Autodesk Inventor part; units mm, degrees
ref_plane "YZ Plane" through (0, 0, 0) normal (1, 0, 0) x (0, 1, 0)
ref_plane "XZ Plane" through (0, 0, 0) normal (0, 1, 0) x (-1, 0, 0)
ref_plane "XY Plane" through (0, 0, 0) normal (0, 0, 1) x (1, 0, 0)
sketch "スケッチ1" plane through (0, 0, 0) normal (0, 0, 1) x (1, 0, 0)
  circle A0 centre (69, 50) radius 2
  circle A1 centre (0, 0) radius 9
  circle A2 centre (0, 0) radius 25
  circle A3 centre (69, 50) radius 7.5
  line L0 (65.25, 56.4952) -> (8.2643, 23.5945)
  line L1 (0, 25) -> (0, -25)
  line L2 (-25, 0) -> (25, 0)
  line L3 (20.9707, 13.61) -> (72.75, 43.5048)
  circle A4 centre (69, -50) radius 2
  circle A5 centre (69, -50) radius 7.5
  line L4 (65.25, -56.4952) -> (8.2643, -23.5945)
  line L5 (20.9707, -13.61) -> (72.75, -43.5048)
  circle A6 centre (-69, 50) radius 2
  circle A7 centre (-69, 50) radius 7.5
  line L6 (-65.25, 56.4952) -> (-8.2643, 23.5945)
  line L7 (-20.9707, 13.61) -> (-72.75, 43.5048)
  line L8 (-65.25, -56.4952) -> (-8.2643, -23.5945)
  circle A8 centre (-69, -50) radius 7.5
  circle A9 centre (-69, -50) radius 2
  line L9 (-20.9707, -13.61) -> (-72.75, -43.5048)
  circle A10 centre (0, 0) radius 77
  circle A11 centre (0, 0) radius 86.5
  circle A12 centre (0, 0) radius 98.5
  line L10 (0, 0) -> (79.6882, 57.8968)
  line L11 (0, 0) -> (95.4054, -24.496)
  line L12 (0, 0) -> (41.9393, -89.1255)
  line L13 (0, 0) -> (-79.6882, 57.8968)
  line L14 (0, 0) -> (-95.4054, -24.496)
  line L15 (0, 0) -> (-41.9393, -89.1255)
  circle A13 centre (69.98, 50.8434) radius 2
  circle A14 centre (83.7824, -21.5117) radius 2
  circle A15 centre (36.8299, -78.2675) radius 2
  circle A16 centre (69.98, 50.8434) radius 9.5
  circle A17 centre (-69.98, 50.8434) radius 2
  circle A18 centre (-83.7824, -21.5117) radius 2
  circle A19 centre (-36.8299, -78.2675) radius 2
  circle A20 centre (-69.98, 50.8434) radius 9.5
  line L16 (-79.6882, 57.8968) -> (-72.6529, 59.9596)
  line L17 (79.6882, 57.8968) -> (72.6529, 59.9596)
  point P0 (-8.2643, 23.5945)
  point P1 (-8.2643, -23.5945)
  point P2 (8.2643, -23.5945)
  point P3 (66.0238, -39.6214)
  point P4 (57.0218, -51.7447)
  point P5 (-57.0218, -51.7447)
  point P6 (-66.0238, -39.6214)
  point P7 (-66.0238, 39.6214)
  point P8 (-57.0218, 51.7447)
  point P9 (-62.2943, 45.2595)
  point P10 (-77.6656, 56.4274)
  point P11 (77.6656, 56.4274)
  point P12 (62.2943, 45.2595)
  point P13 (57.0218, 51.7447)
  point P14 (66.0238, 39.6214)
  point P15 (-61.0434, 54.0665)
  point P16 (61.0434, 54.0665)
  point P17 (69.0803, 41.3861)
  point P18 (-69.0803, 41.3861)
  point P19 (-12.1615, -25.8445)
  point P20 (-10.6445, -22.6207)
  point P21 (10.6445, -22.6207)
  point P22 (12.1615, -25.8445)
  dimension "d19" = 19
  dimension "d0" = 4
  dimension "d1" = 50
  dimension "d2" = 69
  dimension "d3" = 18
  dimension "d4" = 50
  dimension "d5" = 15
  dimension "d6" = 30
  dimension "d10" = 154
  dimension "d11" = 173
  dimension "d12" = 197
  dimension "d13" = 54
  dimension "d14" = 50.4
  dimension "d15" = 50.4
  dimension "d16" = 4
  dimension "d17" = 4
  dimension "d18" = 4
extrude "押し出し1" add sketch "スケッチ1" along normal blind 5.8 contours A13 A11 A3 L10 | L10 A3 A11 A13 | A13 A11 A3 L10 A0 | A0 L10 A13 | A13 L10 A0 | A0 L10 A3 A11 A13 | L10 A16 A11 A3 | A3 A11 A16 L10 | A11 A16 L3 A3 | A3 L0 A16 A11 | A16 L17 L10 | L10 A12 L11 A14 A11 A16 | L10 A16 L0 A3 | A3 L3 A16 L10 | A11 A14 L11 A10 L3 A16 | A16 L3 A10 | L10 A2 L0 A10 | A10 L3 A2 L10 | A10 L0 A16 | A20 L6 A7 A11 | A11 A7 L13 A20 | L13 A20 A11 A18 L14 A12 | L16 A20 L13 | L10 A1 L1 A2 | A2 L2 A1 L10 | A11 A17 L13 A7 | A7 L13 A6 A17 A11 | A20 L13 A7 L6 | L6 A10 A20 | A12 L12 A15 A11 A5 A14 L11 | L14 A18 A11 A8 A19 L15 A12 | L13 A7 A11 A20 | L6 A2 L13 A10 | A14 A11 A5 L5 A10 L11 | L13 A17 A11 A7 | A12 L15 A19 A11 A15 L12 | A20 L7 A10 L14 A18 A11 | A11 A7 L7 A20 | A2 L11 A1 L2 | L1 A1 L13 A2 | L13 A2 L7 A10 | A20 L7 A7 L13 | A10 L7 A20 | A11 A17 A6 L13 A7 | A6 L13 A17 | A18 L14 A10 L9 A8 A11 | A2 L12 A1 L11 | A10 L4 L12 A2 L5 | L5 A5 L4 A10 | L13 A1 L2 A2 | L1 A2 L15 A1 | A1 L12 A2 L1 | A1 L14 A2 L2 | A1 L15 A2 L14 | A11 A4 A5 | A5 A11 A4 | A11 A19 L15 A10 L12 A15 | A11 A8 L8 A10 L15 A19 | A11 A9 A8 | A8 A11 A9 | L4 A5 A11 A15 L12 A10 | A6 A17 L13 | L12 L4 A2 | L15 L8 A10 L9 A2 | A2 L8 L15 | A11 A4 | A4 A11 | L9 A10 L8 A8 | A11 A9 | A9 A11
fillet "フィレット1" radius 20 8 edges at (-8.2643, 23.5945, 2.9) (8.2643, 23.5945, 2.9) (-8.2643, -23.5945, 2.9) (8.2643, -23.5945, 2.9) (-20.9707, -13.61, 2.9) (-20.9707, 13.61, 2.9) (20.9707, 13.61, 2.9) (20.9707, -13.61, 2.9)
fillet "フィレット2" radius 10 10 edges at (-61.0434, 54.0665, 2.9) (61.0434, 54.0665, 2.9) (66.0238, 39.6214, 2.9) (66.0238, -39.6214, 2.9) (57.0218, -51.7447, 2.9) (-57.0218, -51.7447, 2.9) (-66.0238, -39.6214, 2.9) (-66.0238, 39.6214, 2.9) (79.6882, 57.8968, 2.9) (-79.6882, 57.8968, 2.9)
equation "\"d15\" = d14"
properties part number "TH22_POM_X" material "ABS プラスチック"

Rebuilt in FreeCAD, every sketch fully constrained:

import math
import FreeCAD as App
import Part
import Sketcher
from FreeCAD import Vector
Q = App.Units.Quantity


def edges_at(feature, points):
    """Names of the edges that pass closest to the given points."""
    edges = feature.Shape.Edges
    near = lambda p: min(range(len(edges)), key=lambda i: edges[i].distToShape(Part.Vertex(*p))[0])
    return sorted({f"Edge{near(p) + 1}" for p in points})

doc = App.newDocument("Part")
body = doc.addObject("PartDesign::Body", "Body")

sketch1 = doc.addObject("Sketcher::SketchObject", "Sketch")
body.addObject(sketch1)
sketch1.AttachmentSupport = (doc.XY_Plane, [""])
sketch1.MapMode = "FlatFace"
sketch1.addGeometry([
    Part.ArcOfCircle(Part.Circle(Vector(69.98, 50.8434, 0), Vector(0, 0, 1), 9.5), math.radians(73.658688), math.radians(160.166905)),
    Part.LineSegment(Vector(61.043493, 54.066573, 0), Vector(8.2643, 23.5945, 0)),
    Part.ArcOfCircle(Part.Circle(Vector(0, 0, 0), Vector(0, 0, 1), 25), math.radians(70.696488), math.radians(109.303512)),
    Part.LineSegment(Vector(-8.2643, 23.5945, 0), Vector(-61.043493, 54.066573, 0)),
    Part.ArcOfCircle(Part.Circle(Vector(-69.98, 50.8434, 0), Vector(0, 0, 1), 9.5), math.radians(19.833095), math.radians(106.341312)),
    Part.LineSegment(Vector(-72.6529, 59.9596, 0), Vector(-79.6882, 57.8968, 0)),
    Part.ArcOfCircle(Part.Circle(Vector(0, 0, 0), Vector(0, 0, 1), 98.5), math.radians(144.000031), math.radians(395.999969)),
    Part.LineSegment(Vector(79.6882, 57.8968, 0), Vector(72.6529, 59.9596, 0)),
    Part.Circle(Vector(69.98, 50.8434, 0), Vector(0, 0, 1), 2),
    Part.Circle(Vector(83.7824, -21.5117, 0), Vector(0, 0, 1), 2),
    Part.ArcOfCircle(Part.Circle(Vector(0, 0, 0), Vector(0, 0, 1), 77), math.radians(-30.968316), math.radians(30.968316)),
    Part.LineSegment(Vector(66.023803, -39.621427, 0), Vector(20.9707, -13.61, 0)),
    Part.ArcOfCircle(Part.Circle(Vector(0, 0, 0), Vector(0, 0, 1), 25), math.radians(-32.983601), math.radians(32.983601)),
    Part.LineSegment(Vector(20.9707, 13.61, 0), Vector(66.023803, 39.621427, 0)),
    Part.Circle(Vector(36.8299, -78.2675, 0), Vector(0, 0, 1), 2),
    Part.Circle(Vector(0, 0, 0), Vector(0, 0, 1), 9),
    Part.Circle(Vector(-36.8299, -78.2675, 0), Vector(0, 0, 1), 2),
    Part.ArcOfCircle(Part.Circle(Vector(0, 0, 0), Vector(0, 0, 1), 77), math.radians(-137.777716), math.radians(-42.222284)),
    Part.LineSegment(Vector(-57.021833, -51.744667, 0), Vector(-8.2643, -23.5945, 0)),
    Part.ArcOfCircle(Part.Circle(Vector(0, 0, 0), Vector(0, 0, 1), 25), math.radians(-109.303512), math.radians(-70.696488)),
    Part.LineSegment(Vector(8.2643, -23.5945, 0), Vector(57.021833, -51.744667, 0)),
    Part.Circle(Vector(-83.7824, -21.5117, 0), Vector(0, 0, 1), 2),
    Part.ArcOfCircle(Part.Circle(Vector(0, 0, 0), Vector(0, 0, 1), 25), math.radians(147.016399), math.radians(212.983601)),
    Part.LineSegment(Vector(-20.9707, -13.61, 0), Vector(-66.023803, -39.621427, 0)),
    Part.ArcOfCircle(Part.Circle(Vector(0, 0, 0), Vector(0, 0, 1), 77), math.radians(149.031684), math.radians(210.968316)),
    Part.LineSegment(Vector(-66.023803, 39.621427, 0), Vector(-20.9707, 13.61, 0)),
    Part.Circle(Vector(-69.98, 50.8434, 0), Vector(0, 0, 1), 2),
], False)
sketch1.addConstraint([
    Sketcher.Constraint("Coincident", 0, 2, 1, 1),
    Sketcher.Constraint("Coincident", 1, 2, 2, 1),
    Sketcher.Constraint("Coincident", 2, 2, 3, 1),
    Sketcher.Constraint("Coincident", 3, 2, 4, 1),
    Sketcher.Constraint("Tangent", 4, 2, 5, 1),
    Sketcher.Constraint("Coincident", 5, 2, 6, 1),
    Sketcher.Constraint("Coincident", 6, 2, 7, 1),
    Sketcher.Constraint("Tangent", 7, 2, 0, 1),
    Sketcher.Constraint("Coincident", 10, 1, 11, 1),
    Sketcher.Constraint("Coincident", 11, 2, 12, 1),
    Sketcher.Constraint("Coincident", 12, 2, 13, 1),
    Sketcher.Constraint("Coincident", 13, 2, 10, 2),
    Sketcher.Constraint("Coincident", 17, 1, 18, 1),
    Sketcher.Constraint("Coincident", 18, 2, 19, 1),
    Sketcher.Constraint("Coincident", 19, 2, 20, 1),
    Sketcher.Constraint("Coincident", 20, 2, 17, 2),
    Sketcher.Constraint("Coincident", 22, 2, 23, 1),
    Sketcher.Constraint("Coincident", 23, 2, 24, 2),
    Sketcher.Constraint("Coincident", 24, 1, 25, 1),
    Sketcher.Constraint("Coincident", 25, 2, 22, 1),
    Sketcher.Constraint("Coincident", 2, 3, -1, 1),
    Sketcher.Constraint("Coincident", 6, 3, -1, 1),
    Sketcher.Constraint("Coincident", 10, 3, -1, 1),
    Sketcher.Constraint("Coincident", 12, 3, -1, 1),
    Sketcher.Constraint("Coincident", 15, 3, -1, 1),
    Sketcher.Constraint("Coincident", 17, 3, -1, 1),
    Sketcher.Constraint("Coincident", 19, 3, -1, 1),
    Sketcher.Constraint("Coincident", 22, 3, -1, 1),
    Sketcher.Constraint("Coincident", 24, 3, -1, 1),
    Sketcher.Constraint("Coincident", 8, 3, 0, 3),
    Sketcher.Constraint("Coincident", 26, 3, 4, 3),
    Sketcher.Constraint("Equal", 0, 4),
    Sketcher.Constraint("Equal", 8, 9),
    Sketcher.Constraint("Equal", 2, 12),
    Sketcher.Constraint("Equal", 9, 14),
    Sketcher.Constraint("Equal", 14, 16),
    Sketcher.Constraint("Equal", 10, 17),
    Sketcher.Constraint("Equal", 12, 19),
    Sketcher.Constraint("Equal", 16, 21),
    Sketcher.Constraint("Equal", 19, 22),
    Sketcher.Constraint("Equal", 17, 24),
    Sketcher.Constraint("Equal", 21, 26),
    Sketcher.Constraint("Symmetric", 0, 3, 4, 3, -2),
    Sketcher.Constraint("Symmetric", 14, 3, 16, 3, -2),
    Sketcher.Constraint("Symmetric", 9, 3, 21, 3, -2),
    Sketcher.Constraint("Parallel", 3, 11),
    Sketcher.Constraint("Parallel", 1, 13),
    Sketcher.Constraint("Parallel", 13, 18),
    Sketcher.Constraint("Parallel", 11, 20),
    Sketcher.Constraint("Parallel", 18, 23),
    Sketcher.Constraint("Parallel", 20, 25),
    Sketcher.Constraint("Horizontal", 1, 2, 2, 2),
    Sketcher.Constraint("Horizontal", 0, 2, 3, 2),
    Sketcher.Constraint("Horizontal", 5, 2, 6, 2),
    Sketcher.Constraint("Horizontal", 18, 2, 19, 2),
    Sketcher.Constraint("Horizontal", 11, 2, 22, 2),
    Sketcher.Constraint("Horizontal", 13, 2, 24, 1),
    Sketcher.Constraint("Vertical", 11, 2, 12, 2),
    Sketcher.Constraint("Vertical", 2, 2, 18, 2),
    Sketcher.Constraint("Diameter", 8, Q("4 mm")),
    Sketcher.Constraint("Diameter", 15, Q("18 mm")),
    Sketcher.Constraint("Radius", 2, Q("25 mm")),
    Sketcher.Constraint("Radius", 10, Q("77 mm")),
    Sketcher.Constraint("Radius", 0, Q("9.5 mm")),
    Sketcher.Constraint("Radius", 6, Q("98.5 mm")),
    Sketcher.Constraint("Angle", 13, Q("30 deg")),
    Sketcher.Constraint("DistanceX", -1, 1, 0, 3, Q("69.98 mm")),
    Sketcher.Constraint("DistanceX", -1, 1, 14, 3, Q("36.83 mm")),
    Sketcher.Constraint("DistanceY", 11, 2, -1, 1, Q("13.61 mm")),
    Sketcher.Constraint("DistanceX", 4, 2, -1, 1, Q("72.653 mm")),
    Sketcher.Constraint("DistanceY", 9, 3, 0, 3, Q("72.355 mm")),
    Sketcher.Constraint("DistanceX", 0, 2, 9, 3, Q("22.739 mm")),
    Sketcher.Constraint("DistanceY", 2, 2, 3, 2, Q("30.472 mm")),
    Sketcher.Constraint("DistanceY", 3, 2, 4, 2, Q("5.893 mm")),
    Sketcher.Constraint("DistanceY", 14, 3, 10, 1, Q("38.646 mm")),
])
pad1 = doc.addObject("PartDesign::Pad", "Pad")
body.addObject(pad1)
pad1.Profile = sketch1
pad1.Length = 5.8
doc.recompute()

fillet = doc.addObject("PartDesign::Fillet", "Fillet")
body.addObject(fillet)
fillet.Base = (pad1, edges_at(pad1, [
    (-8.264, 23.595, 2.9),
    (8.264, 23.595, 2.9),
    (-8.264, -23.595, 2.9),
    (8.264, -23.595, 2.9),
    (-20.971, -13.61, 2.9),
    (-20.971, 13.61, 2.9),
    (20.971, 13.61, 2.9),
    (20.971, -13.61, 2.9),
]))
fillet.Radius = 20
doc.recompute()

fillet2 = doc.addObject("PartDesign::Fillet", "Fillet001")
body.addObject(fillet2)
fillet2.Base = (fillet, edges_at(fillet, [
    (-61.043, 54.066, 2.9),
    (61.043, 54.066, 2.9),
    (66.024, 39.621, 2.9),
    (66.024, -39.621, 2.9),
    (57.022, -51.745, 2.9),
    (-57.022, -51.745, 2.9),
    (-66.024, -39.621, 2.9),
    (-66.024, 39.621, 2.9),
    (79.688, 57.897, 2.9),
    (-79.688, 57.897, 2.9),
]))
fillet2.Radius = 10

doc.recompute()
